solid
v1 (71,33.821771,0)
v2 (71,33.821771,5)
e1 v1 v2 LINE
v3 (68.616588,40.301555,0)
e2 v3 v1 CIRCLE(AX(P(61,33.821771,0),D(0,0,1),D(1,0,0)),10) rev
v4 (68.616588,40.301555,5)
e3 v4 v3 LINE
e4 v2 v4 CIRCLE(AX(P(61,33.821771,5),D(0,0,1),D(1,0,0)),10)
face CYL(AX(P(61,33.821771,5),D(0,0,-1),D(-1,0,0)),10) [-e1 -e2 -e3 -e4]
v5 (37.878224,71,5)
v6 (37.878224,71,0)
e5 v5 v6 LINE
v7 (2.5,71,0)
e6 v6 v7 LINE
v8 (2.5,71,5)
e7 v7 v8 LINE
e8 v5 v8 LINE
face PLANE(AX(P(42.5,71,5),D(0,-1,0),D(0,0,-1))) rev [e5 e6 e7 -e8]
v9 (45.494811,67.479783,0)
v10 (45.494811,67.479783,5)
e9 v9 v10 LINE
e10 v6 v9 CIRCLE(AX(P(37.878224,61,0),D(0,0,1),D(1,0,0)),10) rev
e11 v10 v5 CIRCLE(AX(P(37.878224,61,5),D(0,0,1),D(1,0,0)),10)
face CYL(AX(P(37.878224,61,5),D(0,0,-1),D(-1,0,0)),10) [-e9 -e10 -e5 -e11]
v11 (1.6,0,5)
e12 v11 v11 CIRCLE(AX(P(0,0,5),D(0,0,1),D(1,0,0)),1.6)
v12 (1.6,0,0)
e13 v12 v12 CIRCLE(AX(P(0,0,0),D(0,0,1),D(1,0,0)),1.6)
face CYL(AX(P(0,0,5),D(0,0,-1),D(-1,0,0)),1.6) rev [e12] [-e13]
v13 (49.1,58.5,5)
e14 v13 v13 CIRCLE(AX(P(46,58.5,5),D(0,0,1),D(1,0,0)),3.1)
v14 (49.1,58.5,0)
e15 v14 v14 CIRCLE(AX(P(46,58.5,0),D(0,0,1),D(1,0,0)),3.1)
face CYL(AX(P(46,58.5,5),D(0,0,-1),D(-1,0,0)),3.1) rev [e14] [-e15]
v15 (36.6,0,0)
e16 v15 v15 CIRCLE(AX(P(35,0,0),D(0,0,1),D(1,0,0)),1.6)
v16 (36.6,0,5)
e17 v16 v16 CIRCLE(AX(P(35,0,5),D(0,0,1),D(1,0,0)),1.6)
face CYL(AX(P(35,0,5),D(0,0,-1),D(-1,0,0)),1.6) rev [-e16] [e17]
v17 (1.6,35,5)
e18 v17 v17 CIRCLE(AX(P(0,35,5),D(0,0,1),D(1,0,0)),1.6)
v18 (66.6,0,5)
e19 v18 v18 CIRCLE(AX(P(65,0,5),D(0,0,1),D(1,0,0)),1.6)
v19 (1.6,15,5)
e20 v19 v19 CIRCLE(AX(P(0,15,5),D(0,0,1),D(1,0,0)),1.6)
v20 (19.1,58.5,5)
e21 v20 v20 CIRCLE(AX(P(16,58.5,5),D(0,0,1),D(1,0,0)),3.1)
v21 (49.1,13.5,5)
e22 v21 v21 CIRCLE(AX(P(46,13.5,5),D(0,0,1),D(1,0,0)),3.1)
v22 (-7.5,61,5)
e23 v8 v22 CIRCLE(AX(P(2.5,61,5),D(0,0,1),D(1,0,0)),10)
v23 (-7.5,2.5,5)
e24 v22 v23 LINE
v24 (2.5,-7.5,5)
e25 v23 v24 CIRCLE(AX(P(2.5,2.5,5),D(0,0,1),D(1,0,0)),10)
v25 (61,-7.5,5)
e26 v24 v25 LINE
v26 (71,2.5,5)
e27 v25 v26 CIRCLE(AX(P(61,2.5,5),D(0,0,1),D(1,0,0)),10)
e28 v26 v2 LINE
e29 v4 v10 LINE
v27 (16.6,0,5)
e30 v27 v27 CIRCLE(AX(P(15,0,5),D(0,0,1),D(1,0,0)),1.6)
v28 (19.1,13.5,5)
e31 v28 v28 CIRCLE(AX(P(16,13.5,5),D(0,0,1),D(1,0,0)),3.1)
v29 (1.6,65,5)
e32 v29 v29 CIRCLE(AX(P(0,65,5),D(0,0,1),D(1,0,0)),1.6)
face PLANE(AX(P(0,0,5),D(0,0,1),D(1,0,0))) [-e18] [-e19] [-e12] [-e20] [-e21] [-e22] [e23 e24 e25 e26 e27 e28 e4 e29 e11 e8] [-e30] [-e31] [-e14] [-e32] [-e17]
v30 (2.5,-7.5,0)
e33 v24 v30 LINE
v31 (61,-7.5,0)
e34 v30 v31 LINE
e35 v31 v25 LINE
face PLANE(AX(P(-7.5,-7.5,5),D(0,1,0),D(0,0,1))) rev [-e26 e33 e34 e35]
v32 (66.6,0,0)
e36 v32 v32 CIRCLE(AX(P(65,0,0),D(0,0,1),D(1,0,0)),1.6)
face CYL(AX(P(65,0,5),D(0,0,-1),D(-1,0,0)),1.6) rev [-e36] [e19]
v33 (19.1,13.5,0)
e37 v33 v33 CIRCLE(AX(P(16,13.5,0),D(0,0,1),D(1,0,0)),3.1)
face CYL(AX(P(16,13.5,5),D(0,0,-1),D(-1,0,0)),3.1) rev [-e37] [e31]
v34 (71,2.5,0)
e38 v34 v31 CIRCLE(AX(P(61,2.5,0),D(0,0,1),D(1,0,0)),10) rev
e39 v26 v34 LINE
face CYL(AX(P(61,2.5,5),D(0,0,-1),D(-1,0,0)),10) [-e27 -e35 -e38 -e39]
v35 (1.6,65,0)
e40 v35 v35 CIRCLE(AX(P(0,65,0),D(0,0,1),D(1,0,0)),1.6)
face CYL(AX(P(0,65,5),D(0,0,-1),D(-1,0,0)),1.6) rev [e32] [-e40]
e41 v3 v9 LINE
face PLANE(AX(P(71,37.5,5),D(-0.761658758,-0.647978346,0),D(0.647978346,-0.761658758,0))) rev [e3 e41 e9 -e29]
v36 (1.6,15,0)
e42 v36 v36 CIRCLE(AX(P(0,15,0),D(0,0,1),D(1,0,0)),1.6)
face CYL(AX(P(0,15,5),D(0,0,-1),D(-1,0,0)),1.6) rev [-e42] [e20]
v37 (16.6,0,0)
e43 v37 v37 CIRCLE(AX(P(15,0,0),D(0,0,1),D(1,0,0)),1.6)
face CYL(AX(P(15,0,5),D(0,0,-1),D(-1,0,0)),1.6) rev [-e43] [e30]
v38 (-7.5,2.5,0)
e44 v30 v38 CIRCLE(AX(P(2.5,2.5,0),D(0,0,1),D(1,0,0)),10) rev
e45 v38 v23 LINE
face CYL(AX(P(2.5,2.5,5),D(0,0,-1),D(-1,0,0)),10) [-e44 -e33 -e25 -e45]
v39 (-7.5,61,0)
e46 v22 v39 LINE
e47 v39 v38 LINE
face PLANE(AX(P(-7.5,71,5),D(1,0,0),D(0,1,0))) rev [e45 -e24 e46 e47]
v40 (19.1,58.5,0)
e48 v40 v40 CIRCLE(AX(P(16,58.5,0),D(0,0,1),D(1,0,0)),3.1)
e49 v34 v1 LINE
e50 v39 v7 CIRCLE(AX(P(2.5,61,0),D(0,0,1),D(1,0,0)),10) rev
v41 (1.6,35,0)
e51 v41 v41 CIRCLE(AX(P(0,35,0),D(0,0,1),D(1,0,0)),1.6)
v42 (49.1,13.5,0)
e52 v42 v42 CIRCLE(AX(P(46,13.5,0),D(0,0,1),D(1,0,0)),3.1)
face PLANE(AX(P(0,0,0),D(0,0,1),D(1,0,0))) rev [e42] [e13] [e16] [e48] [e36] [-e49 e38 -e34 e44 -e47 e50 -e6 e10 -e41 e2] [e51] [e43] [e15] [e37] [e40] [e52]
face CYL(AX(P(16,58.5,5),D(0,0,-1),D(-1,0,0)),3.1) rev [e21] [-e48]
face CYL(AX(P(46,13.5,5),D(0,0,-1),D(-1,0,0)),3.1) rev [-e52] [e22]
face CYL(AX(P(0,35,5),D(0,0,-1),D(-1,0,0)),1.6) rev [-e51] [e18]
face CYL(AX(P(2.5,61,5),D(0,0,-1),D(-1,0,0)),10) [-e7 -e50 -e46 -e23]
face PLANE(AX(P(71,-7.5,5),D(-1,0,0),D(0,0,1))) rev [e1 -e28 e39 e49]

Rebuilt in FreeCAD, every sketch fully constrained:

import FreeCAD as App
import Part
import Sketcher

V = App.Vector


def edges_at(feature, points):
    """Names of the edges that pass closest to the given points."""
    edges = feature.Shape.Edges
    near = lambda p: min(range(len(edges)), key=lambda i: edges[i].distToShape(Part.Vertex(*p))[0])
    return sorted({f"Edge{near(p) + 1}" for p in points})

doc = App.newDocument("Part")
body = doc.addObject("PartDesign::Body", "Body")

# Sketch on XY plane
sketch1 = body.newObject("Sketcher::SketchObject", "Sketch")
sketch1.AttachmentSupport = (doc.getObject("XY_Plane"), [""])
sketch1.MapMode = "FlatFace"
sketch1.addGeometry(Part.LineSegment(V(-7.5, 71, 0), V(-7.5, -7.5, 0)), False)
sketch1.addGeometry(Part.LineSegment(V(-7.5, -7.5, 0), V(71, -7.5, 0)), False)
sketch1.addGeometry(Part.LineSegment(V(71, -7.5, 0), V(71, 37.5, 0)), False)
sketch1.addGeometry(Part.LineSegment(V(71, 37.5, 0), V(42.5, 71, 0)), False)
sketch1.addGeometry(Part.LineSegment(V(42.5, 71, 0), V(-7.5, 71, 0)), False)
sketch1.addGeometry(Part.Circle(V(0, 0, 0), V(0, 0, 1), 1.6), False)
sketch1.addGeometry(Part.Circle(V(15, 0, 0), V(0, 0, 1), 1.6), False)
sketch1.addGeometry(Part.Circle(V(0, 15, 0), V(0, 0, 1), 1.6), False)
sketch1.addGeometry(Part.Circle(V(16, 13.5, 0), V(0, 0, 1), 3.1), False)
sketch1.addGeometry(Part.Circle(V(35, 0, 0), V(0, 0, 1), 1.6), False)
sketch1.addGeometry(Part.Circle(V(46, 13.5, 0), V(0, 0, 1), 3.1), False)
sketch1.addGeometry(Part.Circle(V(65, 0, 0), V(0, 0, 1), 1.6), False)
sketch1.addGeometry(Part.Circle(V(0, 35, 0), V(0, 0, 1), 1.6), False)
sketch1.addGeometry(Part.Circle(V(0, 65, 0), V(0, 0, 1), 1.6), False)
sketch1.addGeometry(Part.Circle(V(16, 58.5, 0), V(0, 0, 1), 3.1), False)
sketch1.addGeometry(Part.Circle(V(46, 58.5, 0), V(0, 0, 1), 3.1), False)
sketch1.addConstraint(Sketcher.Constraint("Coincident", 0, 2, 1, 1))
sketch1.addConstraint(Sketcher.Constraint("Coincident", 1, 2, 2, 1))
sketch1.addConstraint(Sketcher.Constraint("Coincident", 2, 2, 3, 1))
sketch1.addConstraint(Sketcher.Constraint("Coincident", 3, 2, 4, 1))
sketch1.addConstraint(Sketcher.Constraint("Coincident", 4, 2, 0, 1))
sketch1.addConstraint(Sketcher.Constraint("Vertical", 0))
sketch1.addConstraint(Sketcher.Constraint("Horizontal", 1))
sketch1.addConstraint(Sketcher.Constraint("Vertical", 2))
sketch1.addConstraint(Sketcher.Constraint("Horizontal", 4))
sketch1.addConstraint(Sketcher.Constraint("Coincident", 5, 3, -1, 1))
sketch1.addConstraint(Sketcher.Constraint("Equal", 5, 6))
sketch1.addConstraint(Sketcher.Constraint("Equal", 6, 7))
sketch1.addConstraint(Sketcher.Constraint("Equal", 7, 9))
sketch1.addConstraint(Sketcher.Constraint("Equal", 8, 10))
sketch1.addConstraint(Sketcher.Constraint("Equal", 9, 11))
sketch1.addConstraint(Sketcher.Constraint("Equal", 11, 12))
sketch1.addConstraint(Sketcher.Constraint("Equal", 12, 13))
sketch1.addConstraint(Sketcher.Constraint("Equal", 10, 14))
sketch1.addConstraint(Sketcher.Constraint("Equal", 14, 15))
sketch1.addConstraint(Sketcher.Constraint("PointOnObject", 6, 3, -1))
sketch1.addConstraint(Sketcher.Constraint("PointOnObject", 7, 3, -2))
sketch1.addConstraint(Sketcher.Constraint("PointOnObject", 9, 3, -1))
sketch1.addConstraint(Sketcher.Constraint("PointOnObject", 11, 3, -1))
sketch1.addConstraint(Sketcher.Constraint("PointOnObject", 12, 3, -2))
sketch1.addConstraint(Sketcher.Constraint("PointOnObject", 13, 3, -2))
sketch1.addConstraint(Sketcher.Constraint("Horizontal", 8, 3, 10, 3))
sketch1.addConstraint(Sketcher.Constraint("Horizontal", 14, 3, 15, 3))
sketch1.addConstraint(Sketcher.Constraint("Vertical", 8, 3, 14, 3))
sketch1.addConstraint(Sketcher.Constraint("Vertical", 10, 3, 15, 3))
sketch1.addConstraint(Sketcher.Constraint("Equal", 1, 0))
sketch1.addConstraint(Sketcher.Constraint("Diameter", 5, 3.2))
sketch1.addConstraint(Sketcher.Constraint("Diameter", 8, 6.2))
sketch1.addConstraint(Sketcher.Constraint("DistanceX", 4, 2, 4, 1, 50.0))
sketch1.addConstraint(Sketcher.Constraint("DistanceY", 2, 1, 2, 2, 45.0))
sketch1.addConstraint(Sketcher.Constraint("DistanceX", 1, 1, 1, 2, 78.5))
sketch1.addConstraint(Sketcher.Constraint("DistanceX", -1, 1, 6, 3, 15.0))
sketch1.addConstraint(Sketcher.Constraint("DistanceY", -1, 1, 7, 3, 15.0))
sketch1.addConstraint(Sketcher.Constraint("DistanceX", -1, 1, 8, 3, 16.0))
sketch1.addConstraint(Sketcher.Constraint("DistanceX", -1, 1, 9, 3, 35.0))
sketch1.addConstraint(Sketcher.Constraint("DistanceX", -1, 1, 10, 3, 46.0))
sketch1.addConstraint(Sketcher.Constraint("DistanceX", -1, 1, 11, 3, 65.0))
sketch1.addConstraint(Sketcher.Constraint("DistanceY", -1, 1, 12, 3, 35.0))
sketch1.addConstraint(Sketcher.Constraint("DistanceY", -1, 1, 13, 3, 65.0))
sketch1.addConstraint(Sketcher.Constraint("DistanceX", -1, 1, 1, 2, 71.0))
sketch1.addConstraint(Sketcher.Constraint("DistanceY", -1, 1, 3, 2, 71.0))
sketch1.addConstraint(Sketcher.Constraint("DistanceY", 8, 3, 14, 3, 45.0))
sketch1.addConstraint(Sketcher.Constraint("DistanceY", 0, 2, 8, 3, 21.0))
pad1 = body.newObject("PartDesign::Pad", "Pad")
pad1.Profile = sketch1
pad1.Length = 5
doc.recompute()

fillet = body.newObject("PartDesign::Fillet", "Fillet")
fillet.Base = (pad1, edges_at(pad1, [
    (42.5, 71, 2.5),
    (71, 37.5, 2.5),
    (71, -7.5, 2.5),
    (-7.5, -7.5, 2.5),
    (-7.5, 71, 2.5),
]))
fillet.Radius = 10

doc.recompute()
